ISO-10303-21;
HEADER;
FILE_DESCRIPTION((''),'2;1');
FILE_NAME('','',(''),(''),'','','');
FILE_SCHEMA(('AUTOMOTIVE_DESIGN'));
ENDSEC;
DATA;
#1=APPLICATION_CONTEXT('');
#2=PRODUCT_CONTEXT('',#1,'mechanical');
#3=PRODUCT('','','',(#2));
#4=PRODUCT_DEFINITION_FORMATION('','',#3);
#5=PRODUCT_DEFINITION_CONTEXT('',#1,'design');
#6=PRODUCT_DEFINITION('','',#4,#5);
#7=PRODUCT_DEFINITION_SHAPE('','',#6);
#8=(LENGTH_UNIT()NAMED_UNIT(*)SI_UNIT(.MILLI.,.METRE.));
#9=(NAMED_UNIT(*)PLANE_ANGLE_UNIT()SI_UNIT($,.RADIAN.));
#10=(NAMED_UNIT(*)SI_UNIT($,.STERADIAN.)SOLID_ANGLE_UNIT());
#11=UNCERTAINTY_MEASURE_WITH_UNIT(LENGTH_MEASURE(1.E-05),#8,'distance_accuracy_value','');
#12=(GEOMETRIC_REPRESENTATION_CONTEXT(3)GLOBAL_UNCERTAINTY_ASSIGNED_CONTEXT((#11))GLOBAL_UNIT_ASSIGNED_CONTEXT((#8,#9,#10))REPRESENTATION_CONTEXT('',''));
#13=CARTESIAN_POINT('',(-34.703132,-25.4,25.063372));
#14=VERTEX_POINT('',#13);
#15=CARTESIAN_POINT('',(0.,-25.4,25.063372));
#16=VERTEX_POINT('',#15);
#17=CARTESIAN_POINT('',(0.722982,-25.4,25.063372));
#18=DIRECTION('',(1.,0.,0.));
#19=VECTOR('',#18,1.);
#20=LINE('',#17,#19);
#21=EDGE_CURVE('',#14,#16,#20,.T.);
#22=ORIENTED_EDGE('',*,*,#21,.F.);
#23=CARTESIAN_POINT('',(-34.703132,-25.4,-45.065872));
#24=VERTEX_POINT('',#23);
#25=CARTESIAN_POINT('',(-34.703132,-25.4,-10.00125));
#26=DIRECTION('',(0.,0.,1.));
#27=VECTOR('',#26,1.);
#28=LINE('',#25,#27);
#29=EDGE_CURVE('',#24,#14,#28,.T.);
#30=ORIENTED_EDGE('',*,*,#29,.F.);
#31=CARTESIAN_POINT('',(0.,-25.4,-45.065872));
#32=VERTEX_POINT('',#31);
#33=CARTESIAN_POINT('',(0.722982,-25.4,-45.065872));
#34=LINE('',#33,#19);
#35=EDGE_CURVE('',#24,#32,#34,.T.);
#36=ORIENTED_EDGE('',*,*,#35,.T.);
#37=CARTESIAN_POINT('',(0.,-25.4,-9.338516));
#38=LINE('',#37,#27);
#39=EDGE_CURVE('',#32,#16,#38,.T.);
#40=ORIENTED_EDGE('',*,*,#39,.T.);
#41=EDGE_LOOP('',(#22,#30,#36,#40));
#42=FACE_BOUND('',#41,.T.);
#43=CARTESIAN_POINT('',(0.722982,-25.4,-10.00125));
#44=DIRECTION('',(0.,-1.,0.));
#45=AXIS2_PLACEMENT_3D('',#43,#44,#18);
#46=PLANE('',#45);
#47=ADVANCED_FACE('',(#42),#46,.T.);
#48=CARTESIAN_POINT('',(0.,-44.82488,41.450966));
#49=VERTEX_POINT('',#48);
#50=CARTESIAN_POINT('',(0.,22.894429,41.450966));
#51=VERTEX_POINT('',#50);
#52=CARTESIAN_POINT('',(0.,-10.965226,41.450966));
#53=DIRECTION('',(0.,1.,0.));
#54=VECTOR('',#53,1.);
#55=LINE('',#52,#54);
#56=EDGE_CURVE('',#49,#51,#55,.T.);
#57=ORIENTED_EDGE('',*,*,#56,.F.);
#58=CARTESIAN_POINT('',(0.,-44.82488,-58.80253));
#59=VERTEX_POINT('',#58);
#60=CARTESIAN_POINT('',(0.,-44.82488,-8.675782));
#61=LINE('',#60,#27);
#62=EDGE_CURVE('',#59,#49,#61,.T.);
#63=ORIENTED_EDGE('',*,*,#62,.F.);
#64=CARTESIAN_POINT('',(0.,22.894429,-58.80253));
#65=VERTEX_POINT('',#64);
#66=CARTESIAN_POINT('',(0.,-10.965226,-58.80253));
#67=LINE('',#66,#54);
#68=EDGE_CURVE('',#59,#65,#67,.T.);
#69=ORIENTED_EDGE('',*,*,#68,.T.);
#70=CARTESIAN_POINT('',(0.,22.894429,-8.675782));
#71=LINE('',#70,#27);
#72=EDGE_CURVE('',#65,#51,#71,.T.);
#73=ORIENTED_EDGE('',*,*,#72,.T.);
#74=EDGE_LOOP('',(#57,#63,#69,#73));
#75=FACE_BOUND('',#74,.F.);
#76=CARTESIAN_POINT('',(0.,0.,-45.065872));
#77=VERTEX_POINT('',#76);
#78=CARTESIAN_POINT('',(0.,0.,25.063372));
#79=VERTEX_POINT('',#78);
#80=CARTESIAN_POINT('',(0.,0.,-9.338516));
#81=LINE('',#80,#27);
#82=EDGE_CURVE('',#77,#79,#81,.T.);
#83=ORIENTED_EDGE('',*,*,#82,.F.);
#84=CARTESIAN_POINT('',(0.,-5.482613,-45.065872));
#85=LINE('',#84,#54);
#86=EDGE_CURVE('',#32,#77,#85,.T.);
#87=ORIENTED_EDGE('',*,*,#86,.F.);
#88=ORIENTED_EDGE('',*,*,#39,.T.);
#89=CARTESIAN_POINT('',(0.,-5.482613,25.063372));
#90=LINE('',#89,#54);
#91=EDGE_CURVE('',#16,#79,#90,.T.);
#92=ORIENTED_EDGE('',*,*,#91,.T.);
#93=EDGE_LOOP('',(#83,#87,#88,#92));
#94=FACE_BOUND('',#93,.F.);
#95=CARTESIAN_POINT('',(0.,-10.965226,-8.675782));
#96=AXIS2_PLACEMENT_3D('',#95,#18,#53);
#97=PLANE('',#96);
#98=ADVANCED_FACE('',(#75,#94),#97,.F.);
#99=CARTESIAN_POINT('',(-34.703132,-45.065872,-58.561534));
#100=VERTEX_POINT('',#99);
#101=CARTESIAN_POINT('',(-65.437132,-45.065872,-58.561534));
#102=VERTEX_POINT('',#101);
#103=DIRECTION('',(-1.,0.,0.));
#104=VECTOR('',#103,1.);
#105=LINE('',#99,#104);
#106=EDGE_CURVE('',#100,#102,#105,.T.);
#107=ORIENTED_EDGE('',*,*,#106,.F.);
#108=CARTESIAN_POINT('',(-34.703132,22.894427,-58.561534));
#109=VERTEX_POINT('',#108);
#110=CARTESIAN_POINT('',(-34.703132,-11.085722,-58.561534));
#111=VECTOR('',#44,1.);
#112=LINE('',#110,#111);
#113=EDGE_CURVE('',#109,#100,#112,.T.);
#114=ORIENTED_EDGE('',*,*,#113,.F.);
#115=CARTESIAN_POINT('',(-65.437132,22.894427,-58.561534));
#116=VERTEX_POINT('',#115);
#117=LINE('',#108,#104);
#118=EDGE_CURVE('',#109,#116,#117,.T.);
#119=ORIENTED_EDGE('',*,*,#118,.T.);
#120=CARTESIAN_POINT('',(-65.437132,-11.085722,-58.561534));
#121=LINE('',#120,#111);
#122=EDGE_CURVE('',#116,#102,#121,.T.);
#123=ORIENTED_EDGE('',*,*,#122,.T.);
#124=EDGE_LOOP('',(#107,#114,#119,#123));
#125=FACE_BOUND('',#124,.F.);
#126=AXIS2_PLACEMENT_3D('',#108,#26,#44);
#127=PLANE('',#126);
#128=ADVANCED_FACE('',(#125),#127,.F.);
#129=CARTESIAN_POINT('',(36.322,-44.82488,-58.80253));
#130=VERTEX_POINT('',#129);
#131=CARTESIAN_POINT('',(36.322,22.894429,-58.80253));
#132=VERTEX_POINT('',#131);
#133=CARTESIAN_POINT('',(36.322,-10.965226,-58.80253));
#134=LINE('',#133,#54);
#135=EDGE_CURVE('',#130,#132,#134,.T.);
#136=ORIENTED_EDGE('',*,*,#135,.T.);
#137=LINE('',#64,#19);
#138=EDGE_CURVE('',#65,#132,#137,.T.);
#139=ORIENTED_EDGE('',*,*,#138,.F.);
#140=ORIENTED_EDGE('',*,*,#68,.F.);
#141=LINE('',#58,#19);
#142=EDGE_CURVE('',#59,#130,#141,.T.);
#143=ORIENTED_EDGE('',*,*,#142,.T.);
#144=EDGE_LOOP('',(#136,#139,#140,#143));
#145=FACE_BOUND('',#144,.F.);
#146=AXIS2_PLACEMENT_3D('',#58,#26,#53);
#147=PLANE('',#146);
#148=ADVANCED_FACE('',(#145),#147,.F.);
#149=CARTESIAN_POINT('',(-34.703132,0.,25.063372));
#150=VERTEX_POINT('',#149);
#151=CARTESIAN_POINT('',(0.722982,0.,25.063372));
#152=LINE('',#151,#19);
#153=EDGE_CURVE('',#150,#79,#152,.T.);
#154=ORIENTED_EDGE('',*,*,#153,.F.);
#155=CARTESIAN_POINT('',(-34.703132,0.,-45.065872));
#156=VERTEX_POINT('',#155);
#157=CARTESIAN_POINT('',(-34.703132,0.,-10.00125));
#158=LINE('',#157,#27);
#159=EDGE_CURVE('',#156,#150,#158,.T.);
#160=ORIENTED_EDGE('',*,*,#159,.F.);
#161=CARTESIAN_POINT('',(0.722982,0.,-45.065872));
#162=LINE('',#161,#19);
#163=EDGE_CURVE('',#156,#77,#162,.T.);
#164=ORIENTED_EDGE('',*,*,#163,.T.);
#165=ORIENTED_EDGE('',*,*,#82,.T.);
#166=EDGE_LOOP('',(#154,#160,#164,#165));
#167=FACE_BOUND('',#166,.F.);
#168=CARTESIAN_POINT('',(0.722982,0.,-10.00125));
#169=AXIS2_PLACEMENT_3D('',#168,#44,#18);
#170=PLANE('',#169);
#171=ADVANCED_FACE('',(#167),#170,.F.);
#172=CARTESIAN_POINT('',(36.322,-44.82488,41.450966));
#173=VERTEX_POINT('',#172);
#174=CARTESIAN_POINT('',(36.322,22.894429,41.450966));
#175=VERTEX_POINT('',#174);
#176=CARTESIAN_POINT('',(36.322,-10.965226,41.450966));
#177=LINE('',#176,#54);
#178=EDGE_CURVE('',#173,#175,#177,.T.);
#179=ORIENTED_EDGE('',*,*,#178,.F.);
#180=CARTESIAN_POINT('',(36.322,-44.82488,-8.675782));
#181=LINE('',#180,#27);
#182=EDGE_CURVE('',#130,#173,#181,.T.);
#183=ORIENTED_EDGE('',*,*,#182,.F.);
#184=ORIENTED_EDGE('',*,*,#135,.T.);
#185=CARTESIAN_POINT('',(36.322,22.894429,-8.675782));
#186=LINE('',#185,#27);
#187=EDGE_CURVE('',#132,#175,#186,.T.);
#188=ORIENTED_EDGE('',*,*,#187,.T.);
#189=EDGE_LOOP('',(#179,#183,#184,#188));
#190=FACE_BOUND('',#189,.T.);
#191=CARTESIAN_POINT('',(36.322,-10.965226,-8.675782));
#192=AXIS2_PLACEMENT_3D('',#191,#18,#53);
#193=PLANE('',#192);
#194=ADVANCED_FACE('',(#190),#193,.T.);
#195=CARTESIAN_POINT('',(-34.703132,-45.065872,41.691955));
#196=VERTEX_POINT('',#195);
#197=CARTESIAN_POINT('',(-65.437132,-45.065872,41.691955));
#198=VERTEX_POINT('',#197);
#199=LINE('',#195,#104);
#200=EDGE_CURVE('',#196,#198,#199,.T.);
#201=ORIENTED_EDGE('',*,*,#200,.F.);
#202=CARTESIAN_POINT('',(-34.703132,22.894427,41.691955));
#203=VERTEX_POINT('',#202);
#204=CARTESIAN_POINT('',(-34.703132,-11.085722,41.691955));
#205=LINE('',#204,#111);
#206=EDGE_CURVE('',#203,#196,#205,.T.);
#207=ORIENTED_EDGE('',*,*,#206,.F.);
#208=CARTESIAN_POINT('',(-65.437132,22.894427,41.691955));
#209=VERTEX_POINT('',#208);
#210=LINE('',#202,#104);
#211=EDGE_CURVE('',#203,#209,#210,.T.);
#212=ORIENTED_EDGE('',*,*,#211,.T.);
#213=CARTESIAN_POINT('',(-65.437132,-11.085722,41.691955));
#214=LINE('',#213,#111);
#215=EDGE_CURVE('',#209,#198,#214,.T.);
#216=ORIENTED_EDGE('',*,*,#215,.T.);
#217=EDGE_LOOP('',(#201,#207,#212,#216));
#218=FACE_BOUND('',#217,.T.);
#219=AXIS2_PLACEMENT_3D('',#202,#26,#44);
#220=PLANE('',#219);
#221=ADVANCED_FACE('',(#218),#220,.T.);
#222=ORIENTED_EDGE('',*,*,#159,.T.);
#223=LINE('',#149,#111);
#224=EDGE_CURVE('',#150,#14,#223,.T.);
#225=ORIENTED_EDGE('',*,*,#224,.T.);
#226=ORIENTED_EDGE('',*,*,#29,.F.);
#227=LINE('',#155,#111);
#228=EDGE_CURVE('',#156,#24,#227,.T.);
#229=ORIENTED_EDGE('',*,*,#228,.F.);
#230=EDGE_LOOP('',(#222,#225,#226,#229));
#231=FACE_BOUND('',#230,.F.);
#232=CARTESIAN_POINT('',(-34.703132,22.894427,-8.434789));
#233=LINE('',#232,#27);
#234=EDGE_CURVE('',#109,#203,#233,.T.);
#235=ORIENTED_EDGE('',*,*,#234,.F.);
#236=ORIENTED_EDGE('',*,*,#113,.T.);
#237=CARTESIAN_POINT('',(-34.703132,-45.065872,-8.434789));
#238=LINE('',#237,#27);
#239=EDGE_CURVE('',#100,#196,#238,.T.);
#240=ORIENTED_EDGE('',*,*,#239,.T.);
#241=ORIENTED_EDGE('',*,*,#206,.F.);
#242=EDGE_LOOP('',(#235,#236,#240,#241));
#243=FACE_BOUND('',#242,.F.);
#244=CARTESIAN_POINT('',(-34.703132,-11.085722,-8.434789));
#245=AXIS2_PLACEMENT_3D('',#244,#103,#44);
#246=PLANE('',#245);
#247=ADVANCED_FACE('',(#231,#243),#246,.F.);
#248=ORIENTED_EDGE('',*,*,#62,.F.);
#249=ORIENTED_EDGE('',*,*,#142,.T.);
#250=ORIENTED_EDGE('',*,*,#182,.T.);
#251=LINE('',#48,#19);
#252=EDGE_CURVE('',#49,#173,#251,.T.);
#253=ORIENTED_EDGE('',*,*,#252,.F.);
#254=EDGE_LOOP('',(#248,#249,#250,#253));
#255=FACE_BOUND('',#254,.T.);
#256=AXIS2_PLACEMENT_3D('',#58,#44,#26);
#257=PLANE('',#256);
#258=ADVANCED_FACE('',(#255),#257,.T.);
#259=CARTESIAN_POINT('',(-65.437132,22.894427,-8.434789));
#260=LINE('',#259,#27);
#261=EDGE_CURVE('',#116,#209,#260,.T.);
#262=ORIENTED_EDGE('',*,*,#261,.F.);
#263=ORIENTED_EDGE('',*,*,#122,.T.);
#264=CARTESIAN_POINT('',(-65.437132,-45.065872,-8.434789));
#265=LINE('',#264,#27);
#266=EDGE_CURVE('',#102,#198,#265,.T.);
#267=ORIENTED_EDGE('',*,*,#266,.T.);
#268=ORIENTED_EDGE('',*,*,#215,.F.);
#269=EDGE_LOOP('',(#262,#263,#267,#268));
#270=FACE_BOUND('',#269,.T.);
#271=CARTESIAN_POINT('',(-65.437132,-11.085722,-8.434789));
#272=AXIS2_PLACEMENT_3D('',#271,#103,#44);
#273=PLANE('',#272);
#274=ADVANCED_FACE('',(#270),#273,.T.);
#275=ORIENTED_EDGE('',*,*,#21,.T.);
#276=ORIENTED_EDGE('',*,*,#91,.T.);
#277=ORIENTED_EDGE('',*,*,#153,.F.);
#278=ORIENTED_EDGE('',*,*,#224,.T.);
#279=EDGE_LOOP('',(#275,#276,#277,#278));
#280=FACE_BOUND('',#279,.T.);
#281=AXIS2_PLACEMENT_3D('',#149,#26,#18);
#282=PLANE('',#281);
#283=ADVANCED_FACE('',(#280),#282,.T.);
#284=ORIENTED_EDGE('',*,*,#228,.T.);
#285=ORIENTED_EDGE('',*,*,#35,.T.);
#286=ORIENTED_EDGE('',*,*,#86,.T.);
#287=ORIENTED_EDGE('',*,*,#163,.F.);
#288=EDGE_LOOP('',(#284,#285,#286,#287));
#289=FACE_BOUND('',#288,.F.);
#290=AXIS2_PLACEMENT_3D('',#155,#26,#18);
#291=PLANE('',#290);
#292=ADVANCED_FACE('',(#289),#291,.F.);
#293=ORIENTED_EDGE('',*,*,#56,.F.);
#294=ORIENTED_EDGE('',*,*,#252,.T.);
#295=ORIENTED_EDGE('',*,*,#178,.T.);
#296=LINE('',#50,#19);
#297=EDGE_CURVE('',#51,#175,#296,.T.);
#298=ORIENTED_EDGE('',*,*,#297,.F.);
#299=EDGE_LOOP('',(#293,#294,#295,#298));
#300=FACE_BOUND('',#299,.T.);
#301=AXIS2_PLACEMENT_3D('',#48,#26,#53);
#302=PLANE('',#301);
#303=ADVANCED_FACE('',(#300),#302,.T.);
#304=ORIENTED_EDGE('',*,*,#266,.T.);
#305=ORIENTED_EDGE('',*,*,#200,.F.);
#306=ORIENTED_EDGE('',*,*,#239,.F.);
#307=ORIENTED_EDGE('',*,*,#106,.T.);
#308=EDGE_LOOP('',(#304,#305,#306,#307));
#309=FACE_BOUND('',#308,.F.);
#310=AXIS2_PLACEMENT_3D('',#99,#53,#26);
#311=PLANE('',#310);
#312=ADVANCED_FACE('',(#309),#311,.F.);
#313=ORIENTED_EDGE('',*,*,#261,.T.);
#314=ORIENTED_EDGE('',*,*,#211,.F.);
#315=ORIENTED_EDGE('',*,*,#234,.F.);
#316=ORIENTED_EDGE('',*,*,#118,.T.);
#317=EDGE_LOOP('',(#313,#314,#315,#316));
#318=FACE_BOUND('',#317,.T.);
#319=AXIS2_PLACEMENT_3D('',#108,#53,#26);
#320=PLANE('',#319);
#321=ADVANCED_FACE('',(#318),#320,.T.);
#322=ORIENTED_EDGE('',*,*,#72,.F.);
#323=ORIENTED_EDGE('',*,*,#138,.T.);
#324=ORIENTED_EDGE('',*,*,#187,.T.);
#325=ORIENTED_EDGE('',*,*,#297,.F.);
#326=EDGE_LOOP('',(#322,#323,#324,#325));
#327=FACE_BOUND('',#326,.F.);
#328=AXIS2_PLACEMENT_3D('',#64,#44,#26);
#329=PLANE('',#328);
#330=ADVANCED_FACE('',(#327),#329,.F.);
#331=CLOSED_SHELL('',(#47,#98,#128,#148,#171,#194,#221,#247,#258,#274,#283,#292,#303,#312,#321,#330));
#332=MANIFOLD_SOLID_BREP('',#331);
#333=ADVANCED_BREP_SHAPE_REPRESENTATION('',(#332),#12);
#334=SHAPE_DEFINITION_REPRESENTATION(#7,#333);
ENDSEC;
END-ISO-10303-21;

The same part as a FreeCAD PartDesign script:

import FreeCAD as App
import Part
import Sketcher
from FreeCAD import Vector


def add_polygon(sketch, points):
    """Adds a closed chain of lines whose ends are joined by coincident constraints."""
    first, n = sketch.GeometryCount, len(points)
    for a, b in zip(points, points[1:] + points[:1]):
        sketch.addGeometry(Part.LineSegment(App.Vector(*a, 0), App.Vector(*b, 0)), False)
    for i in range(n):
        sketch.addConstraint(Sketcher.Constraint("Coincident", first + i, 2, first + (i + 1) % n, 1))

doc = App.newDocument("Part")
params = doc.addObject("Spreadsheet::Sheet", "Params")
for row, (alias, value) in enumerate([
    ("pad1_length", "1 in"),
    ("pad2_length", "1.43 in"),
    ("pad3_length", "1.21 in"),
], start=1):
    params.set(f"A{row}", alias)
    params.set(f"B{row}", "=" + value)
    params.setAlias(f"B{row}", alias)

body = doc.addObject("PartDesign::Body", "Body")

# Sketch on XZ plane
sketch1 = doc.addObject("Sketcher::SketchObject", "Sketch")
body.addObject(sketch1)
sketch1.AttachmentSupport = (doc.XZ_Plane, [""])
sketch1.MapMode = "FlatFace"
add_polygon(sketch1, [(-34.703132, 25.063372), (-34.703132, -45.065872), (36.149096, -45.065872), (36.149096, 25.063372)])  # lines 0-3
sketch1.addConstraint([
    Sketcher.Constraint("Vertical", 0),
    Sketcher.Constraint("Horizontal", 1),
    Sketcher.Constraint("Vertical", 2),
    Sketcher.Constraint("Horizontal", 3),
    Sketcher.Constraint("DistanceX", 1, 1, 1, 2, 70.852228),
    Sketcher.Constraint("DistanceY", 0, 2, 0, 1, 70.129245),
    Sketcher.Constraint("DistanceX", 0, 2, -1, 1, 34.703132),
    Sketcher.Constraint("DistanceY", 0, 2, -1, 1, 45.065872),
])
pad1 = doc.addObject("PartDesign::Pad", "Pad")
body.addObject(pad1)
pad1.Profile = sketch1
pad1.setExpression("Length", "Params.pad1_length")

# Sketch on YZ plane
sketch2 = doc.addObject("Sketcher::SketchObject", "Sketch001")
body.addObject(sketch2)
sketch2.AttachmentSupport = (doc.YZ_Plane, [""])
sketch2.MapMode = "FlatFace"
add_polygon(sketch2, [(-44.82488, 41.450966), (-44.82488, -58.80253), (22.894429, -58.80253), (22.894429, 41.450966)])  # lines 0-3
sketch2.addConstraint([
    Sketcher.Constraint("Vertical", 0),
    Sketcher.Constraint("Horizontal", 1),
    Sketcher.Constraint("Vertical", 2),
    Sketcher.Constraint("Horizontal", 3),
    Sketcher.Constraint("DistanceX", 1, 1, 1, 2, 67.719309),
    Sketcher.Constraint("DistanceY", 0, 2, 0, 1, 100.253496),
    Sketcher.Constraint("DistanceX", 0, 2, -1, 1, 44.82488),
    Sketcher.Constraint("DistanceY", 0, 2, -1, 1, 58.80253),
])
pad2 = doc.addObject("PartDesign::Pad", "Pad001")
body.addObject(pad2)
pad2.Profile = sketch2
pad2.setExpression("Length", "Params.pad2_length")

# Sketch on YZ plane
sketch3 = doc.addObject("Sketcher::SketchObject", "Sketch002")
body.addObject(sketch3)
sketch3.AttachmentSupport = (doc.YZ_Plane, [""])
sketch3.MapMode = "FlatFace"
sketch3.AttachmentOffset = App.Placement(Vector(0, 0, -34.703132), App.Rotation())
add_polygon(sketch3, [(22.894427, 41.691955), (22.894427, -58.561534), (-45.065872, -58.561534), (-45.065872, 41.691955)])  # lines 0-3
sketch3.addConstraint([
    Sketcher.Constraint("Vertical", 0),
    Sketcher.Constraint("Horizontal", 1),
    Sketcher.Constraint("Vertical", 2),
    Sketcher.Constraint("Horizontal", 3),
    Sketcher.Constraint("DistanceX", 1, 2, 1, 1, 67.960299),
    Sketcher.Constraint("DistanceY", 0, 2, 0, 1, 100.253489),
    Sketcher.Constraint("DistanceX", 1, 2, -1, 1, 45.065872),
    Sketcher.Constraint("DistanceY", 0, 2, -1, 1, 58.561534),
])
pad3 = doc.addObject("PartDesign::Pad", "Pad002")
body.addObject(pad3)
pad3.Profile = sketch3
pad3.setExpression("Length", "Params.pad3_length")
pad3.Reversed = True

doc.recompute()
